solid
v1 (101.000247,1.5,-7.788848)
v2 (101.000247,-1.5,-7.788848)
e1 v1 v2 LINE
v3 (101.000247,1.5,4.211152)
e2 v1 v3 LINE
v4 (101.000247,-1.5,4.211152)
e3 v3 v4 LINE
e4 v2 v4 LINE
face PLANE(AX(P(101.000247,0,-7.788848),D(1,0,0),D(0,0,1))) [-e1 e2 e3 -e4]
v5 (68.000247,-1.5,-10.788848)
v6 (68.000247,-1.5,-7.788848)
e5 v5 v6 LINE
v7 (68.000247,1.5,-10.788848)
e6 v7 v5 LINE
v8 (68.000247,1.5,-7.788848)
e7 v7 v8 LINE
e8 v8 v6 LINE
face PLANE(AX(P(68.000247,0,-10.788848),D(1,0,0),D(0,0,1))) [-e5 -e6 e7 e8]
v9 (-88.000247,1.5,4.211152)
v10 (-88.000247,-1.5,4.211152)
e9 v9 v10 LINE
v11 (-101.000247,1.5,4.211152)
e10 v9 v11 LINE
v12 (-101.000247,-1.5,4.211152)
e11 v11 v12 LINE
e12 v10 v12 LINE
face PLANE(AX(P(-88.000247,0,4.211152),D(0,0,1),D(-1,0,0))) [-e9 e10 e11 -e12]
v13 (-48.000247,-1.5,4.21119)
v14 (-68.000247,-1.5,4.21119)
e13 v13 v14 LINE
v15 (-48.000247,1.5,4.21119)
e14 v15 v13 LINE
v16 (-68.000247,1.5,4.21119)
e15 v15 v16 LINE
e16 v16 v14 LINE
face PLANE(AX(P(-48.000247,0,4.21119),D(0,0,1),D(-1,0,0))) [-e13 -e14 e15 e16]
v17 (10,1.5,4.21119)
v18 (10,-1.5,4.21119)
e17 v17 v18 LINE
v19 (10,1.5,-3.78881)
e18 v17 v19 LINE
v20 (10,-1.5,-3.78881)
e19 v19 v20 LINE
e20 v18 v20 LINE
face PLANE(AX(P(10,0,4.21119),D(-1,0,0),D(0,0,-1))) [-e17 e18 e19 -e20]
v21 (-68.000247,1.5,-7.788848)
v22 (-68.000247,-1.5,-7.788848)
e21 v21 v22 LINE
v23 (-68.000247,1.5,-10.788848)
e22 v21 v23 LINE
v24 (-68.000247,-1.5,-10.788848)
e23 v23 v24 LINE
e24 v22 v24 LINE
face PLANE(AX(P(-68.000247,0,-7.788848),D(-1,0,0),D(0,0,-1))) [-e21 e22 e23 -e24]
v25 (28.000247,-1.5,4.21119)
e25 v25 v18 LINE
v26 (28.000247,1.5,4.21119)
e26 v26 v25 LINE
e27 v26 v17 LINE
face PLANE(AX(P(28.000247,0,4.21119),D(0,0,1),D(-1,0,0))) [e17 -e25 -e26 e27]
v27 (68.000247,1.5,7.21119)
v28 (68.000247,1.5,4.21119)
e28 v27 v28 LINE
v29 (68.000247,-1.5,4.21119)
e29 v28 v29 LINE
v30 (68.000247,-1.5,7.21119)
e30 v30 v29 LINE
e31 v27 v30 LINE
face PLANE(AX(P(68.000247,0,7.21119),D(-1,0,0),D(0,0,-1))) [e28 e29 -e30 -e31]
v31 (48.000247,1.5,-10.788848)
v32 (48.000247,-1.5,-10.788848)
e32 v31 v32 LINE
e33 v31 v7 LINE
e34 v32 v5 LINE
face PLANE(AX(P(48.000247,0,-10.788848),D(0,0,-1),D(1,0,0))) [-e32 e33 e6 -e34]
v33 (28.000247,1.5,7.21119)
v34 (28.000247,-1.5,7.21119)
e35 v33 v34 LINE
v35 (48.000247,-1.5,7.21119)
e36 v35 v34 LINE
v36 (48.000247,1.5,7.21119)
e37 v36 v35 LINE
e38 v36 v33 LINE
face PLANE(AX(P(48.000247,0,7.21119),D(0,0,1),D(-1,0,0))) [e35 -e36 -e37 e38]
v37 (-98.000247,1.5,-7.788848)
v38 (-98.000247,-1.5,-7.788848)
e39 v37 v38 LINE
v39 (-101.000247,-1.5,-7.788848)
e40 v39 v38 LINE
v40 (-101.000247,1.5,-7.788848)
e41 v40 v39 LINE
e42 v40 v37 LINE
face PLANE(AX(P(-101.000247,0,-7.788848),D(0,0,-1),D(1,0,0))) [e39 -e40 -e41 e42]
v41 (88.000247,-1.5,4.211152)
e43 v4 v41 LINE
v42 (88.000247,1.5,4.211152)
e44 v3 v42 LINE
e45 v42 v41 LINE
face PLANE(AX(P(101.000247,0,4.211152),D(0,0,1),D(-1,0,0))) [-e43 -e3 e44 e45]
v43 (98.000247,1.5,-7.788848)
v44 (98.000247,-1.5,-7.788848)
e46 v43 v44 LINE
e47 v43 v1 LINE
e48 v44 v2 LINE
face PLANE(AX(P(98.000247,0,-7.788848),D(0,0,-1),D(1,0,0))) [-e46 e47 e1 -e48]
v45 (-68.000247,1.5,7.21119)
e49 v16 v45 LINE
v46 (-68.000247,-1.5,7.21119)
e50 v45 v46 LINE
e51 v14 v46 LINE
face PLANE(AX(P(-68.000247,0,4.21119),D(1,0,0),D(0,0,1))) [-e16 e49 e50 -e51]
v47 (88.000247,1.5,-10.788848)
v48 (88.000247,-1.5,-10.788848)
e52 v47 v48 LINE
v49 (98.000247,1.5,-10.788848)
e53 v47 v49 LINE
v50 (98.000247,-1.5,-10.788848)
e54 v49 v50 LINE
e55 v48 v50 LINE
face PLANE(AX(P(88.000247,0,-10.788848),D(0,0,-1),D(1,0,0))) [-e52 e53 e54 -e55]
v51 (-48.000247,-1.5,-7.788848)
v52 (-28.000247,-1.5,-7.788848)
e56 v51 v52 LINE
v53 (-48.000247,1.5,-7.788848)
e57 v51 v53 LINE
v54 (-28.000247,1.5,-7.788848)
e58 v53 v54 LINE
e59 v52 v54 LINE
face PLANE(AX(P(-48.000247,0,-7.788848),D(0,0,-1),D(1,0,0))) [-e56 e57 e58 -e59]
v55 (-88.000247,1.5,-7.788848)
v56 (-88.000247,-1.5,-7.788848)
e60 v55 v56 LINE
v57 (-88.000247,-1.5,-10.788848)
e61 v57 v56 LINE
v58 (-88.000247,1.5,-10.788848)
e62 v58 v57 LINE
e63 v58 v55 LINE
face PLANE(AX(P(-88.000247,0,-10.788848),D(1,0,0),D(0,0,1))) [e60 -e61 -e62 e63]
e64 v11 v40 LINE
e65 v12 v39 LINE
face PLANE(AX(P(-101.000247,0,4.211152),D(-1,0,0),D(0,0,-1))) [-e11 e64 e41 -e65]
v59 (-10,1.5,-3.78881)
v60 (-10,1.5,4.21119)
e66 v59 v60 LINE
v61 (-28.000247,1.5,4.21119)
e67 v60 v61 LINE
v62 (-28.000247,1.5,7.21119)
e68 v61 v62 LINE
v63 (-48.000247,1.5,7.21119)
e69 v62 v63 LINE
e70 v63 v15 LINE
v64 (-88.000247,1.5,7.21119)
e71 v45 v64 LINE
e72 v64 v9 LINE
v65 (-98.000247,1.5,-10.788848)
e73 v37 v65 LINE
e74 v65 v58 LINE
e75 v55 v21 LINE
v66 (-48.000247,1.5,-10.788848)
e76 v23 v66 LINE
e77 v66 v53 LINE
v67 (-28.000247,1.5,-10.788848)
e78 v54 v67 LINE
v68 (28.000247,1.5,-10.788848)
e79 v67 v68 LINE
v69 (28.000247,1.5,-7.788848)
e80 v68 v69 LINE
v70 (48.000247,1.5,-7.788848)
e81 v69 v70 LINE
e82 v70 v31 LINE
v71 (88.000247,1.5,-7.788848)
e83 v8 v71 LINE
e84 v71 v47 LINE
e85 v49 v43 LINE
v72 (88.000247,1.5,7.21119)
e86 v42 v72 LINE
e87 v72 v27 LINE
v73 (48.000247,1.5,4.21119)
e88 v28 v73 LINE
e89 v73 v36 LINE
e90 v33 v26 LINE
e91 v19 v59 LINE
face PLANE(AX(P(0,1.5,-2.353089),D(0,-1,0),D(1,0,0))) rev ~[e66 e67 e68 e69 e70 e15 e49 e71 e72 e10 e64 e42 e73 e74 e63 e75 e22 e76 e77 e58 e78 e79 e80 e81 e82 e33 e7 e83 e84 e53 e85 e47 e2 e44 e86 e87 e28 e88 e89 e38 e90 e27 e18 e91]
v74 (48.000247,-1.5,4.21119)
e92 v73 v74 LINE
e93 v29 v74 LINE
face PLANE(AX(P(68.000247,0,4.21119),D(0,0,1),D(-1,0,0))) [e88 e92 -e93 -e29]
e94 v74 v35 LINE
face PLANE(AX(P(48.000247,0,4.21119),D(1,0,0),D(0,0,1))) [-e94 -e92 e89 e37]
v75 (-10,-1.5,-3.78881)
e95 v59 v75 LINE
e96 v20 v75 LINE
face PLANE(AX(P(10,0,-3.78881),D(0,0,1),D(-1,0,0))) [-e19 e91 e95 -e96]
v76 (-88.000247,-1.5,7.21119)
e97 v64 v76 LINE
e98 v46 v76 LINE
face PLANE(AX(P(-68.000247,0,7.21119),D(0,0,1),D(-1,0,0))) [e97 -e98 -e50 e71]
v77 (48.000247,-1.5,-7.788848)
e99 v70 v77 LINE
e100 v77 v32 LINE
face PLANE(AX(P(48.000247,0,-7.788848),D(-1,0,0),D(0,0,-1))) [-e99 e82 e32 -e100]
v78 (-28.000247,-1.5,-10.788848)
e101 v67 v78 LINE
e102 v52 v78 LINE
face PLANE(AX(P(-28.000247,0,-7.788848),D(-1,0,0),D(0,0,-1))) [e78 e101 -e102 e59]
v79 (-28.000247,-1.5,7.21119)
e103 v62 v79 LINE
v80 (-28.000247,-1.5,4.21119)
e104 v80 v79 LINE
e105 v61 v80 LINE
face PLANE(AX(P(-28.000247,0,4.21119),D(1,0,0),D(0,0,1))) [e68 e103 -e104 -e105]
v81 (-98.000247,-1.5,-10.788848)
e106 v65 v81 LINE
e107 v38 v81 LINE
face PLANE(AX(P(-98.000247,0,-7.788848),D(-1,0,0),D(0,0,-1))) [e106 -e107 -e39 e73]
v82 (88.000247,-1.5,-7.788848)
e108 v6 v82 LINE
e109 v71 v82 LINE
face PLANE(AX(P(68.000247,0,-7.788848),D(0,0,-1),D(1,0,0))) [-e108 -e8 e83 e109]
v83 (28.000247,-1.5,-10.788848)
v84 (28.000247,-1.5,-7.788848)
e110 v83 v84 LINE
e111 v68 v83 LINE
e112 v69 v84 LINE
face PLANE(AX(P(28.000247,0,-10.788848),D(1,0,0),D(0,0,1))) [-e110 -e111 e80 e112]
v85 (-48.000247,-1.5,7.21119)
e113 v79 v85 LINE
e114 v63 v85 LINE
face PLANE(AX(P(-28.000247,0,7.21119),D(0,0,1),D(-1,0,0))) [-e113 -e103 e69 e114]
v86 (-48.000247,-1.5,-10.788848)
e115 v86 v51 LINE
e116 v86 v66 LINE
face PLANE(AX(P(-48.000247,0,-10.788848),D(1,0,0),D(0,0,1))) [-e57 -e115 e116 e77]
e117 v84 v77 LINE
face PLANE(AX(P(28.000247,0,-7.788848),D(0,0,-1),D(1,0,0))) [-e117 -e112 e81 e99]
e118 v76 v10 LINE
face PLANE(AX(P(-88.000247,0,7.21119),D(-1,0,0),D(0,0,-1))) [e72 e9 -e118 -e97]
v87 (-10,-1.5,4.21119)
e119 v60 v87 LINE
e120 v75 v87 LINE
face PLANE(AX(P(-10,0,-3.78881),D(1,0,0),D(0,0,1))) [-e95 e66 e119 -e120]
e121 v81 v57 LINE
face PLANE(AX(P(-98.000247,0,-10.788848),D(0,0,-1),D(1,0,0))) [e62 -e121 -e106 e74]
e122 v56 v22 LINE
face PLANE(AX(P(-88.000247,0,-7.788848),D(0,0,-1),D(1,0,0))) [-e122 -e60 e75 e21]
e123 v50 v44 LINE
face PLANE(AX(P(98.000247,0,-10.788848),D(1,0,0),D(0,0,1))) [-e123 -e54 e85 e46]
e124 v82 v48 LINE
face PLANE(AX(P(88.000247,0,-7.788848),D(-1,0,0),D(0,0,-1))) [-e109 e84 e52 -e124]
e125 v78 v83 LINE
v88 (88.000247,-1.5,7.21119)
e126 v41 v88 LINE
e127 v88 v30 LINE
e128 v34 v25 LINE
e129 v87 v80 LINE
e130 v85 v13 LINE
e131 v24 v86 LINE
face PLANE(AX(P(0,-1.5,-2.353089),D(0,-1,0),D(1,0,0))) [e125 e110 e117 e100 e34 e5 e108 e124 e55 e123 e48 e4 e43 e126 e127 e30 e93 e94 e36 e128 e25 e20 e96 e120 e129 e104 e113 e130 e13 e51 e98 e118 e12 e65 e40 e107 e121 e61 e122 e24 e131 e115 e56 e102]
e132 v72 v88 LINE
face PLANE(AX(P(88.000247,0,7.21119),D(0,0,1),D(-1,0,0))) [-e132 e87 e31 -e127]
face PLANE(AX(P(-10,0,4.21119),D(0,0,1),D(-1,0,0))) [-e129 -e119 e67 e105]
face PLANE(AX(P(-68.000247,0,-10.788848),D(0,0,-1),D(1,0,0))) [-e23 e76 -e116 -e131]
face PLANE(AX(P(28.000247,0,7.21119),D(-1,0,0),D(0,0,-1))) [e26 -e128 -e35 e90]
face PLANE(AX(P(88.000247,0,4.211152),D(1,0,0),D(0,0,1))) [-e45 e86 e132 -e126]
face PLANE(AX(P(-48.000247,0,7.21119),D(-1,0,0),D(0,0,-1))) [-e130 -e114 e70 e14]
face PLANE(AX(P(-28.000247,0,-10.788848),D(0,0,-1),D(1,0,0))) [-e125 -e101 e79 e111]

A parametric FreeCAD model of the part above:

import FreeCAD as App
import Part
import Sketcher

V = App.Vector


def add_polygon(sketch, points):
    """Adds a closed chain of lines whose ends are joined by coincident constraints."""
    first, n = sketch.GeometryCount, len(points)
    for a, b in zip(points, points[1:] + points[:1]):
        sketch.addGeometry(Part.LineSegment(App.Vector(*a, 0), App.Vector(*b, 0)), False)
    for i in range(n):
        sketch.addConstraint(Sketcher.Constraint("Coincident", first + i, 2, first + (i + 1) % n, 1))

doc = App.newDocument("Part")
params = doc.addObject("Spreadsheet::Sheet", "Params")
for row, (alias, value) in enumerate([
    ("sketch1_width", "20 mm"),
    ("sketch1_width2", "10 mm"),
    ("sketch1_width3", "3 mm"),
    ("sketch1_height", "12 mm"),
    ("sketch1_height2", "8 mm"),
    ("pad1_length", "3 mm"),
], start=1):
    params.set(f"A{row}", alias)
    params.set(f"B{row}", "=" + value)
    params.setAlias(f"B{row}", alias)

body = doc.addObject("PartDesign::Body", "Body")

# Sketch on XZ plane
sketch1 = body.newObject("Sketcher::SketchObject", "Sketch")
sketch1.AttachmentSupport = (doc.getObject("XZ_Plane"), [""])
sketch1.MapMode = "FlatFace"
add_polygon(sketch1, [(-28, -7.8), (-28, -10.8), (28, -10.8), (28, -7.8), (48, -7.8), (48, -10.8), (68, -10.8), (68, -7.8), (88, -7.8), (88, -10.8), (98, -10.8), (98, -7.8), (101, -7.8), (101, 4.2), (88, 4.2), (88, 7.2), (68, 7.2), (68, 4.2), (48, 4.2), (48, 7.2), (28, 7.2), (28, 4.2), (10, 4.2), (10, -3.8), (-10, -3.8), (-10, 4.2), (-28, 4.2), (-28, 7.2), (-48, 7.2), (-48, 4.2), (-68, 4.2), (-68, 7.2), (-88, 7.2), (-88, 4.2), (-101, 4.2), (-101, -7.8), (-98, -7.8), (-98, -10.8), (-88, -10.8), (-88, -7.8), (-68, -7.8), (-68, -10.8), (-48, -10.8), (-48, -7.8)])  # lines 0-43
sketch1.addConstraint(Sketcher.Constraint("Vertical", 0))
sketch1.addConstraint(Sketcher.Constraint("Horizontal", 1))
sketch1.addConstraint(Sketcher.Constraint("Vertical", 2))
sketch1.addConstraint(Sketcher.Constraint("Horizontal", 3))
sketch1.addConstraint(Sketcher.Constraint("Vertical", 4))
sketch1.addConstraint(Sketcher.Constraint("Horizontal", 5))
sketch1.addConstraint(Sketcher.Constraint("Vertical", 6))
sketch1.addConstraint(Sketcher.Constraint("Horizontal", 7))
sketch1.addConstraint(Sketcher.Constraint("Vertical", 8))
sketch1.addConstraint(Sketcher.Constraint("Horizontal", 9))
sketch1.addConstraint(Sketcher.Constraint("Vertical", 10))
sketch1.addConstraint(Sketcher.Constraint("Horizontal", 11))
sketch1.addConstraint(Sketcher.Constraint("Vertical", 12))
sketch1.addConstraint(Sketcher.Constraint("Horizontal", 13))
sketch1.addConstraint(Sketcher.Constraint("Vertical", 14))
sketch1.addConstraint(Sketcher.Constraint("Horizontal", 15))
sketch1.addConstraint(Sketcher.Constraint("Vertical", 16))
sketch1.addConstraint(Sketcher.Constraint("Horizontal", 17))
sketch1.addConstraint(Sketcher.Constraint("Vertical", 18))
sketch1.addConstraint(Sketcher.Constraint("Horizontal", 19))
sketch1.addConstraint(Sketcher.Constraint("Vertical", 20))
sketch1.addConstraint(Sketcher.Constraint("Horizontal", 21))
sketch1.addConstraint(Sketcher.Constraint("Vertical", 22))
sketch1.addConstraint(Sketcher.Constraint("Horizontal", 23))
sketch1.addConstraint(Sketcher.Constraint("Vertical", 24))
sketch1.addConstraint(Sketcher.Constraint("Horizontal", 25))
sketch1.addConstraint(Sketcher.Constraint("Vertical", 26))
sketch1.addConstraint(Sketcher.Constraint("Horizontal", 27))
sketch1.addConstraint(Sketcher.Constraint("Vertical", 28))
sketch1.addConstraint(Sketcher.Constraint("Horizontal", 29))
sketch1.addConstraint(Sketcher.Constraint("Vertical", 30))
sketch1.addConstraint(Sketcher.Constraint("Horizontal", 31))
sketch1.addConstraint(Sketcher.Constraint("Vertical", 32))
sketch1.addConstraint(Sketcher.Constraint("Horizontal", 33))
sketch1.addConstraint(Sketcher.Constraint("Vertical", 34))
sketch1.addConstraint(Sketcher.Constraint("Horizontal", 35))
sketch1.addConstraint(Sketcher.Constraint("Vertical", 36))
sketch1.addConstraint(Sketcher.Constraint("Horizontal", 37))
sketch1.addConstraint(Sketcher.Constraint("Vertical", 38))
sketch1.addConstraint(Sketcher.Constraint("Horizontal", 39))
sketch1.addConstraint(Sketcher.Constraint("Vertical", 40))
sketch1.addConstraint(Sketcher.Constraint("Horizontal", 41))
sketch1.addConstraint(Sketcher.Constraint("Vertical", 42))
sketch1.addConstraint(Sketcher.Constraint("Horizontal", 43))
sketch1.addConstraint(Sketcher.Constraint("Symmetric", 21, 2, 24, 2, -2))
sketch1.addConstraint(Sketcher.Constraint("Symmetric", 19, 2, 26, 2, -2))
sketch1.addConstraint(Sketcher.Constraint("Symmetric", 17, 2, 28, 2, -2))
sketch1.addConstraint(Sketcher.Constraint("Symmetric", 15, 2, 30, 2, -2))
sketch1.addConstraint(Sketcher.Constraint("Symmetric", 13, 2, 32, 2, -2))
sketch1.addConstraint(Sketcher.Constraint("Symmetric", 11, 2, 34, 2, -2))
sketch1.addConstraint(Sketcher.Constraint("Symmetric", 9, 2, 36, 2, -2))
sketch1.addConstraint(Sketcher.Constraint("Symmetric", 7, 2, 38, 2, -2))
sketch1.addConstraint(Sketcher.Constraint("Symmetric", 5, 2, 40, 2, -2))
sketch1.addConstraint(Sketcher.Constraint("Symmetric", 3, 2, 42, 2, -2))
sketch1.addConstraint(Sketcher.Constraint("Horizontal", 1, 2, 4, 2))
sketch1.addConstraint(Sketcher.Constraint("Horizontal", 3, 2, 6, 2))
sketch1.addConstraint(Sketcher.Constraint("Horizontal", 5, 2, 8, 2))
sketch1.addConstraint(Sketcher.Constraint("Horizontal", 7, 2, 10, 2))
sketch1.addConstraint(Sketcher.Constraint("Horizontal", 15, 2, 18, 2))
sketch1.addConstraint(Sketcher.Constraint("Horizontal", 17, 2, 20, 2))
sketch1.addConstraint(Sketcher.Constraint("Vertical", 8, 2, 13, 2))
sketch1.addConstraint(Sketcher.Constraint("Vertical", 6, 2, 15, 2))
sketch1.addConstraint(Sketcher.Constraint("Vertical", 4, 2, 17, 2))
sketch1.addConstraint(Sketcher.Constraint("Vertical", 2, 2, 19, 2))
sketch1.addConstraint(Sketcher.Constraint("Vertical", 0, 2, 25, 2))
sketch1.addConstraint(Sketcher.Constraint("Equal", 3, 5))
sketch1.addConstraint(Sketcher.Constraint("Equal", 5, 7))
sketch1.addConstraint(Sketcher.Constraint("Equal", 19, 23))
sketch1.addConstraint(Sketcher.Constraint("Equal", 35, 0))
sketch1.addConstraint(Sketcher.Constraint("Equal", 10, 16))
sketch1.addConstraint(Sketcher.Constraint("DistanceX", 3, 1, 3, 2, 20.0))
sketch1.addConstraint(Sketcher.Constraint("DistanceX", 9, 1, 9, 2, 10.0))
sketch1.addConstraint(Sketcher.Constraint("DistanceX", 11, 1, 11, 2, 3.0))
sketch1.addConstraint(Sketcher.Constraint("DistanceY", 12, 1, 12, 2, 12.0))
sketch1.addConstraint(Sketcher.Constraint("DistanceY", 22, 2, 22, 1, 8.0))
sketch1.addConstraint(Sketcher.Constraint("DistanceY", 14, 1, 14, 2, 3.000038))
sketch1.addConstraint(Sketcher.Constraint("DistanceX", 1, 1, 1, 2, 56.000494))
sketch1.addConstraint(Sketcher.Constraint("DistanceY", -1, 1, 14, 2, 7.21119))
sketch1.setExpression("Constraints[114]", "Params.sketch1_width")
sketch1.setExpression("Constraints[115]", "Params.sketch1_width2")
sketch1.setExpression("Constraints[116]", "Params.sketch1_width3")
sketch1.setExpression("Constraints[117]", "Params.sketch1_height")
sketch1.setExpression("Constraints[118]", "Params.sketch1_height2")
pad1 = body.newObject("PartDesign::Pad", "Pad")
pad1.Profile = sketch1
pad1.setExpression("Length", "Params.pad1_length")
pad1.Midplane = True

doc.recompute()
